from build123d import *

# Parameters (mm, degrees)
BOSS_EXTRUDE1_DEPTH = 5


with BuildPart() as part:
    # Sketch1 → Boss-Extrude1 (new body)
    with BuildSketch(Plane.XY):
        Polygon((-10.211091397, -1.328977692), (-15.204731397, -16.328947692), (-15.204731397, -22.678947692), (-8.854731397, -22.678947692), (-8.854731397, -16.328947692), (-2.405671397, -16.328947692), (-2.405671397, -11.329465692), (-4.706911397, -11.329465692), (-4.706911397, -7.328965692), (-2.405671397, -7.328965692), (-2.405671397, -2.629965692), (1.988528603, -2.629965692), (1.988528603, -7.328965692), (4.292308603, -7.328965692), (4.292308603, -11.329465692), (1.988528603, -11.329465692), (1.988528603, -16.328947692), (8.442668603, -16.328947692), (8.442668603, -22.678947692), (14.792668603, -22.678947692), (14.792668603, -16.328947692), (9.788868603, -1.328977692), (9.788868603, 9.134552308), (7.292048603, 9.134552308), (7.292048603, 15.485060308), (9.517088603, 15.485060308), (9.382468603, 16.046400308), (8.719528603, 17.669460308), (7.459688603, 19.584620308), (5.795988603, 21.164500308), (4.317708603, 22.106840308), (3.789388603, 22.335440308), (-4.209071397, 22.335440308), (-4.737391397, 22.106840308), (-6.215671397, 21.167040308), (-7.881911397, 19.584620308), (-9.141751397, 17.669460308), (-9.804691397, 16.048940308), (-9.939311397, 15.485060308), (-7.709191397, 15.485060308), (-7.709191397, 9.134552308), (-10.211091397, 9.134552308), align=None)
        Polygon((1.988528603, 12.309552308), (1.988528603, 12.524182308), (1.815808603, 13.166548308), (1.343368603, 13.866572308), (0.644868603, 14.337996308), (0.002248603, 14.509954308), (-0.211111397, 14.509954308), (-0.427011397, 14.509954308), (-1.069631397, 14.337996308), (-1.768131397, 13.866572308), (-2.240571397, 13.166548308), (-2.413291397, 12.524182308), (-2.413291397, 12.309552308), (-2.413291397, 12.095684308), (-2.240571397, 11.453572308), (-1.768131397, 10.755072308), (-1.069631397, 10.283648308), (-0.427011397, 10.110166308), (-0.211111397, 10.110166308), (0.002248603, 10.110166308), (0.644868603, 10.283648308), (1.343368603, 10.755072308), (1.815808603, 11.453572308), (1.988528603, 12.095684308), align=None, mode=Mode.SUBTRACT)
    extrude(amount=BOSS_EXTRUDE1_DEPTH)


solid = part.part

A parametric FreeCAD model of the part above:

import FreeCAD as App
import Part
import Sketcher
from FreeCAD import Vector
Q = App.Units.Quantity

doc = App.newDocument("Part")
body = doc.addObject("PartDesign::Body", "Body")

# Sketch on XY plane
sketch1 = body.newObject("Sketcher::SketchObject", "Sketch")
sketch1.AttachmentSupport = (doc.getObject("XY_Plane"), [""])
sketch1.MapMode = "FlatFace"
sketch1.addGeometry([
    Part.LineSegment(Vector(-10.211091, -1.328978, 0), Vector(-15.204731, -16.328948, 0)),  # 0
    Part.LineSegment(Vector(-15.204731, -16.328948, 0), Vector(-15.204731, -22.678948, 0)),  # 1
    Part.LineSegment(Vector(-15.204731, -22.678948, 0), Vector(-8.854731, -22.678948, 0)),  # 2
    Part.LineSegment(Vector(-8.854731, -22.678948, 0), Vector(-8.854731, -16.328948, 0)),  # 3
    Part.LineSegment(Vector(-8.854731, -16.328948, 0), Vector(-2.405671, -16.328948, 0)),  # 4
    Part.LineSegment(Vector(-2.405671, -16.328948, 0), Vector(-2.405671, -11.329466, 0)),  # 5
    Part.LineSegment(Vector(-2.405671, -11.329466, 0), Vector(-4.706911, -11.329466, 0)),  # 6
    Part.LineSegment(Vector(-4.706911, -11.329466, 0), Vector(-4.706911, -7.328966, 0)),  # 7
    Part.LineSegment(Vector(-4.706911, -7.328966, 0), Vector(-2.405671, -7.328966, 0)),  # 8
    Part.LineSegment(Vector(-2.405671, -7.328966, 0), Vector(-2.405671, -2.629966, 0)),  # 9
    Part.LineSegment(Vector(-2.405671, -2.629966, 0), Vector(1.988529, -2.629966, 0)),  # 10
    Part.LineSegment(Vector(1.988529, -2.629966, 0), Vector(1.988529, -7.328966, 0)),  # 11
    Part.LineSegment(Vector(1.988529, -7.328966, 0), Vector(4.292309, -7.328966, 0)),  # 12
    Part.LineSegment(Vector(4.292309, -7.328966, 0), Vector(4.292309, -11.329466, 0)),  # 13
    Part.LineSegment(Vector(4.292309, -11.329466, 0), Vector(1.988529, -11.329466, 0)),  # 14
    Part.LineSegment(Vector(1.988529, -11.329466, 0), Vector(1.988529, -16.328948, 0)),  # 15
    Part.LineSegment(Vector(1.988529, -16.328948, 0), Vector(8.442669, -16.328948, 0)),  # 16
    Part.LineSegment(Vector(8.442669, -16.328948, 0), Vector(8.442669, -22.678948, 0)),  # 17
    Part.LineSegment(Vector(8.442669, -22.678948, 0), Vector(14.792669, -22.678948, 0)),  # 18
    Part.LineSegment(Vector(14.792669, -22.678948, 0), Vector(14.792669, -16.328948, 0)),  # 19
    Part.LineSegment(Vector(14.792669, -16.328948, 0), Vector(9.788869, -1.328978, 0)),  # 20
    Part.LineSegment(Vector(9.788869, -1.328978, 0), Vector(9.788869, 9.134552, 0)),  # 21
    Part.LineSegment(Vector(9.788869, 9.134552, 0), Vector(7.292049, 9.134552, 0)),  # 22
    Part.LineSegment(Vector(7.292049, 9.134552, 0), Vector(7.292049, 15.48506, 0)),  # 23
    Part.LineSegment(Vector(7.292049, 15.48506, 0), Vector(9.517089, 15.48506, 0)),  # 24
    Part.LineSegment(Vector(9.517089, 15.48506, 0), Vector(9.382469, 16.0464, 0)),  # 25
    Part.LineSegment(Vector(9.382469, 16.0464, 0), Vector(8.719529, 17.66946, 0)),  # 26
    Part.LineSegment(Vector(8.719529, 17.66946, 0), Vector(7.459689, 19.58462, 0)),  # 27
    Part.LineSegment(Vector(7.459689, 19.58462, 0), Vector(5.795989, 21.1645, 0)),  # 28
    Part.LineSegment(Vector(5.795989, 21.1645, 0), Vector(4.317709, 22.10684, 0)),  # 29
    Part.LineSegment(Vector(4.317709, 22.10684, 0), Vector(3.789389, 22.33544, 0)),  # 30
    Part.LineSegment(Vector(3.789389, 22.33544, 0), Vector(-4.209071, 22.33544, 0)),  # 31
    Part.LineSegment(Vector(-4.209071, 22.33544, 0), Vector(-4.737391, 22.10684, 0)),  # 32
    Part.LineSegment(Vector(-4.737391, 22.10684, 0), Vector(-6.215671, 21.16704, 0)),  # 33
    Part.LineSegment(Vector(-6.215671, 21.16704, 0), Vector(-7.881911, 19.58462, 0)),  # 34
    Part.LineSegment(Vector(-7.881911, 19.58462, 0), Vector(-9.141751, 17.66946, 0)),  # 35
    Part.LineSegment(Vector(-9.141751, 17.66946, 0), Vector(-9.804691, 16.04894, 0)),  # 36
    Part.LineSegment(Vector(-9.804691, 16.04894, 0), Vector(-9.939311, 15.48506, 0)),  # 37
    Part.LineSegment(Vector(-9.939311, 15.48506, 0), Vector(-7.709191, 15.48506, 0)),  # 38
    Part.LineSegment(Vector(-7.709191, 15.48506, 0), Vector(-7.709191, 9.134552, 0)),  # 39
    Part.LineSegment(Vector(-7.709191, 9.134552, 0), Vector(-10.211091, 9.134552, 0)),  # 40
    Part.LineSegment(Vector(-10.211091, 9.134552, 0), Vector(-10.211091, -1.328978, 0)),  # 41
    Part.LineSegment(Vector(1.988529, 12.524182, 0), Vector(1.988529, 12.095684, 0)),  # 42
    Part.LineSegment(Vector(1.988529, 12.095684, 0), Vector(1.815809, 11.453572, 0)),  # 43
    Part.LineSegment(Vector(1.815809, 11.453572, 0), Vector(1.343369, 10.755072, 0)),  # 44
    Part.LineSegment(Vector(1.343369, 10.755072, 0), Vector(0.644869, 10.283648, 0)),  # 45
    Part.LineSegment(Vector(0.644869, 10.283648, 0), Vector(0.002249, 10.110166, 0)),  # 46
    Part.LineSegment(Vector(0.002249, 10.110166, 0), Vector(-0.427011, 10.110166, 0)),  # 47
    Part.LineSegment(Vector(-0.427011, 10.110166, 0), Vector(-1.069631, 10.283648, 0)),  # 48
    Part.LineSegment(Vector(-1.069631, 10.283648, 0), Vector(-1.768131, 10.755072, 0)),  # 49
    Part.LineSegment(Vector(-1.768131, 10.755072, 0), Vector(-2.240571, 11.453572, 0)),  # 50
    Part.LineSegment(Vector(-2.240571, 11.453572, 0), Vector(-2.413291, 12.095684, 0)),  # 51
    Part.LineSegment(Vector(-2.413291, 12.095684, 0), Vector(-2.413291, 12.524182, 0)),  # 52
    Part.LineSegment(Vector(-2.413291, 12.524182, 0), Vector(-2.240571, 13.166548, 0)),  # 53
    Part.LineSegment(Vector(-2.240571, 13.166548, 0), Vector(-1.768131, 13.866572, 0)),  # 54
    Part.LineSegment(Vector(-1.768131, 13.866572, 0), Vector(-1.069631, 14.337996, 0)),  # 55
    Part.LineSegment(Vector(-1.069631, 14.337996, 0), Vector(-0.427011, 14.509954, 0)),  # 56
    Part.LineSegment(Vector(-0.427011, 14.509954, 0), Vector(0.002249, 14.509954, 0)),  # 57
    Part.LineSegment(Vector(0.002249, 14.509954, 0), Vector(0.644869, 14.337996, 0)),  # 58
    Part.LineSegment(Vector(0.644869, 14.337996, 0), Vector(1.343369, 13.866572, 0)),  # 59
    Part.LineSegment(Vector(1.343369, 13.866572, 0), Vector(1.815809, 13.166548, 0)),  # 60
    Part.LineSegment(Vector(1.815809, 13.166548, 0), Vector(1.988529, 12.524182, 0)),  # 61
], False)
sketch1.addConstraint([
    Sketcher.Constraint("Coincident", 0, 2, 1, 1),
    Sketcher.Constraint("Coincident", 1, 2, 2, 1),
    Sketcher.Constraint("Coincident", 2, 2, 3, 1),
    Sketcher.Constraint("Coincident", 3, 2, 4, 1),
    Sketcher.Constraint("Coincident", 4, 2, 5, 1),
    Sketcher.Constraint("Coincident", 5, 2, 6, 1),
    Sketcher.Constraint("Coincident", 6, 2, 7, 1),
    Sketcher.Constraint("Coincident", 7, 2, 8, 1),
    Sketcher.Constraint("Coincident", 8, 2, 9, 1),
    Sketcher.Constraint("Coincident", 9, 2, 10, 1),
    Sketcher.Constraint("Coincident", 10, 2, 11, 1),
    Sketcher.Constraint("Coincident", 11, 2, 12, 1),
    Sketcher.Constraint("Coincident", 12, 2, 13, 1),
    Sketcher.Constraint("Coincident", 13, 2, 14, 1),
    Sketcher.Constraint("Coincident", 14, 2, 15, 1),
    Sketcher.Constraint("Coincident", 15, 2, 16, 1),
    Sketcher.Constraint("Coincident", 16, 2, 17, 1),
    Sketcher.Constraint("Coincident", 17, 2, 18, 1),
    Sketcher.Constraint("Coincident", 18, 2, 19, 1),
    Sketcher.Constraint("Coincident", 19, 2, 20, 1),
    Sketcher.Constraint("Coincident", 20, 2, 21, 1),
    Sketcher.Constraint("Coincident", 21, 2, 22, 1),
    Sketcher.Constraint("Coincident", 22, 2, 23, 1),
    Sketcher.Constraint("Coincident", 23, 2, 24, 1),
    Sketcher.Constraint("Coincident", 24, 2, 25, 1),
    Sketcher.Constraint("Coincident", 25, 2, 26, 1),
    Sketcher.Constraint("Coincident", 26, 2, 27, 1),
    Sketcher.Constraint("Coincident", 27, 2, 28, 1),
    Sketcher.Constraint("Coincident", 28, 2, 29, 1),
    Sketcher.Constraint("Coincident", 29, 2, 30, 1),
    Sketcher.Constraint("Coincident", 30, 2, 31, 1),
    Sketcher.Constraint("Coincident", 31, 2, 32, 1),
    Sketcher.Constraint("Coincident", 32, 2, 33, 1),
    Sketcher.Constraint("Coincident", 33, 2, 34, 1),
    Sketcher.Constraint("Coincident", 34, 2, 35, 1),
    Sketcher.Constraint("Coincident", 35, 2, 36, 1),
    Sketcher.Constraint("Coincident", 36, 2, 37, 1),
    Sketcher.Constraint("Coincident", 37, 2, 38, 1),
    Sketcher.Constraint("Coincident", 38, 2, 39, 1),
    Sketcher.Constraint("Coincident", 39, 2, 40, 1),
    Sketcher.Constraint("Coincident", 40, 2, 41, 1),
    Sketcher.Constraint("Coincident", 41, 2, 0, 1),
    Sketcher.Constraint("Coincident", 42, 2, 43, 1),
    Sketcher.Constraint("Coincident", 43, 2, 44, 1),
    Sketcher.Constraint("Coincident", 44, 2, 45, 1),
    Sketcher.Constraint("Coincident", 45, 2, 46, 1),
    Sketcher.Constraint("Coincident", 46, 2, 47, 1),
    Sketcher.Constraint("Coincident", 47, 2, 48, 1),
    Sketcher.Constraint("Coincident", 48, 2, 49, 1),
    Sketcher.Constraint("Coincident", 49, 2, 50, 1),
    Sketcher.Constraint("Coincident", 50, 2, 51, 1),
    Sketcher.Constraint("Coincident", 51, 2, 52, 1),
    Sketcher.Constraint("Coincident", 52, 2, 53, 1),
    Sketcher.Constraint("Coincident", 53, 2, 54, 1),
    Sketcher.Constraint("Coincident", 54, 2, 55, 1),
    Sketcher.Constraint("Coincident", 55, 2, 56, 1),
    Sketcher.Constraint("Coincident", 56, 2, 57, 1),
    Sketcher.Constraint("Coincident", 57, 2, 58, 1),
    Sketcher.Constraint("Coincident", 58, 2, 59, 1),
    Sketcher.Constraint("Coincident", 59, 2, 60, 1),
    Sketcher.Constraint("Coincident", 60, 2, 61, 1),
    Sketcher.Constraint("Coincident", 61, 2, 42, 1),
    Sketcher.Constraint("Vertical", 1),
    Sketcher.Constraint("Horizontal", 2),
    Sketcher.Constraint("Vertical", 3),
    Sketcher.Constraint("Horizontal", 4),
    Sketcher.Constraint("Vertical", 5),
    Sketcher.Constraint("Horizontal", 6),
    Sketcher.Constraint("Vertical", 7),
    Sketcher.Constraint("Horizontal", 8),
    Sketcher.Constraint("Vertical", 9),
    Sketcher.Constraint("Horizontal", 10),
    Sketcher.Constraint("Vertical", 11),
    Sketcher.Constraint("Horizontal", 12),
    Sketcher.Constraint("Vertical", 13),
    Sketcher.Constraint("Horizontal", 14),
    Sketcher.Constraint("Vertical", 15),
    Sketcher.Constraint("Horizontal", 16),
    Sketcher.Constraint("Vertical", 17),
    Sketcher.Constraint("Horizontal", 18),
    Sketcher.Constraint("Vertical", 19),
    Sketcher.Constraint("Vertical", 21),
    Sketcher.Constraint("Horizontal", 22),
    Sketcher.Constraint("Vertical", 23),
    Sketcher.Constraint("Horizontal", 24),
    Sketcher.Constraint("Horizontal", 31),
    Sketcher.Constraint("Horizontal", 38),
    Sketcher.Constraint("Vertical", 39),
    Sketcher.Constraint("Horizontal", 40),
    Sketcher.Constraint("Vertical", 41),
    Sketcher.Constraint("Vertical", 42),
    Sketcher.Constraint("Horizontal", 47),
    Sketcher.Constraint("Vertical", 52),
    Sketcher.Constraint("Horizontal", 57),
    Sketcher.Constraint("Parallel", 45, 55),
    Sketcher.Constraint("Parallel", 49, 59),
    Sketcher.Constraint("Horizontal", 0, 2, 3, 2),
    Sketcher.Constraint("Horizontal", 8, 2, 11, 2),
    Sketcher.Constraint("Horizontal", 6, 2, 13, 2),
    Sketcher.Constraint("Horizontal", 4, 2, 15, 2),
    Sketcher.Constraint("Horizontal", 2, 2, 17, 2),
    Sketcher.Constraint("Horizontal", 16, 2, 19, 2),
    Sketcher.Constraint("Horizontal", 29, 2, 32, 2),
    Sketcher.Constraint("Horizontal", 27, 2, 34, 2),
    Sketcher.Constraint("Horizontal", 26, 2, 35, 2),
    Sketcher.Constraint("Horizontal", 24, 2, 37, 2),
    Sketcher.Constraint("Horizontal", 22, 2, 39, 2),
    Sketcher.Constraint("Horizontal", 20, 2, 41, 2),
    Sketcher.Constraint("Horizontal", 45, 2, 48, 2),
    Sketcher.Constraint("Horizontal", 44, 2, 49, 2),
    Sketcher.Constraint("Horizontal", 43, 2, 50, 2),
    Sketcher.Constraint("Horizontal", 42, 2, 51, 2),
    Sketcher.Constraint("Horizontal", 55, 2, 58, 2),
    Sketcher.Constraint("Horizontal", 54, 2, 59, 2),
    Sketcher.Constraint("Horizontal", 53, 2, 60, 2),
    Sketcher.Constraint("Horizontal", 52, 2, 61, 2),
    Sketcher.Constraint("Vertical", 5, 2, 8, 2),
    Sketcher.Constraint("Vertical", 11, 2, 14, 2),
    Sketcher.Constraint("Vertical", 15, 2, 42, 2),
    Sketcher.Constraint("Vertical", 50, 2, 53, 2),
    Sketcher.Constraint("Vertical", 49, 2, 54, 2),
    Sketcher.Constraint("Vertical", 48, 2, 55, 2),
    Sketcher.Constraint("Vertical", 47, 2, 56, 2),
    Sketcher.Constraint("Vertical", 46, 2, 57, 2),
    Sketcher.Constraint("Vertical", 45, 2, 58, 2),
    Sketcher.Constraint("Vertical", 44, 2, 59, 2),
    Sketcher.Constraint("Vertical", 43, 2, 60, 2),
    Sketcher.Constraint("Equal", 2, 18),
    Sketcher.Constraint("Equal", 18, 1),
    Sketcher.Constraint("Equal", 30, 32),
    Sketcher.Constraint("Equal", 27, 35),
    Sketcher.Constraint("Equal", 46, 48),
    Sketcher.Constraint("Equal", 44, 50),
    Sketcher.Constraint("Equal", 43, 51),
    Sketcher.Constraint("DistanceX", 2, 1, 2, 2, Q("0.25 in")),
    Sketcher.Constraint("DistanceX", 10, 1, 10, 2, Q("0.173 in")),
    Sketcher.Constraint("DistanceY", 9, 1, 9, 2, Q("0.185 in")),
    Sketcher.Constraint("DistanceX", 4, 1, 4, 2, Q("0.2539 in")),
    Sketcher.Constraint("DistanceX", 6, 2, 6, 1, Q("0.0906 in")),
    Sketcher.Constraint("DistanceX", 12, 1, 12, 2, Q("0.0907 in")),
    Sketcher.Constraint("DistanceX", 16, 1, 16, 2, Q("0.2541 in")),
    Sketcher.Constraint("DistanceX", 22, 2, 22, 1, Q("0.0983 in")),
    Sketcher.Constraint("DistanceX", 24, 1, 24, 2, Q("0.0876 in")),
    Sketcher.Constraint("DistanceX", 31, 2, 31, 1, Q("0.3149 in")),
    Sketcher.Constraint("DistanceX", 38, 1, 38, 2, Q("0.0878 in")),
    Sketcher.Constraint("DistanceX", 40, 2, 40, 1, Q("0.0985 in")),
    Sketcher.Constraint("DistanceX", 47, 2, 47, 1, Q("0.0169 in")),
    Sketcher.Constraint("DistanceY", 7, 1, 7, 2, Q("0.1575 in")),
    Sketcher.Constraint("DistanceY", 42, 2, 42, 1, Q("0.428498 mm")),
    Sketcher.Constraint("Distance", 45, Q("0.8427 mm")),
    Sketcher.Constraint("DistanceY", 21, 1, 21, 2, Q("10.46353 mm")),
    Sketcher.Constraint("DistanceY", -1, 1, 25, 2, Q("16.0464 mm")),
    Sketcher.Constraint("DistanceY", -1, 1, 28, 2, Q("21.1645 mm")),
    Sketcher.Constraint("Distance", 0, Q("15.80935 mm")),
    Sketcher.Constraint("Distance", 20, Q("15.812562 mm")),
    Sketcher.Constraint("Distance", 26, Q("1.753229 mm")),
    Sketcher.Constraint("Distance", 36, Q("1.750878 mm")),
    Sketcher.Constraint("Distance", 44, Q("0.843269 mm")),
    Sketcher.Constraint("Distance", 53, Q("0.665181 mm")),
    Sketcher.Constraint("Distance", 54, Q("0.844531 mm")),
    Sketcher.Constraint("Distance", 56, Q("0.665229 mm")),
    Sketcher.Constraint("DistanceY", 5, 1, 5, 2, Q("4.999482 mm")),
    Sketcher.Constraint("DistanceY", 23, 1, 23, 2, Q("6.350508 mm")),
    Sketcher.Constraint("DistanceX", 0, 2, -1, 1, Q("15.204731 mm")),
    Sketcher.Constraint("DistanceX", -1, 1, 20, 2, Q("9.788869 mm")),
    Sketcher.Constraint("DistanceY", -1, 1, 23, 2, Q("15.48506 mm")),
    Sketcher.Constraint("DistanceX", -1, 1, 25, 2, Q("9.382469 mm")),
    Sketcher.Constraint("DistanceX", -1, 1, 26, 2, Q("8.719529 mm")),
    Sketcher.Constraint("DistanceX", -1, 1, 27, 2, Q("7.459689 mm")),
    Sketcher.Constraint("DistanceY", -1, 1, 27, 2, Q("19.58462 mm")),
    Sketcher.Constraint("DistanceX", -1, 1, 28, 2, Q("5.795989 mm")),
    Sketcher.Constraint("DistanceX", -1, 1, 29, 2, Q("4.317709 mm")),
    Sketcher.Constraint("DistanceY", -1, 1, 29, 2, Q("22.10684 mm")),
    Sketcher.Constraint("DistanceX", -1, 1, 30, 2, Q("3.789389 mm")),
    Sketcher.Constraint("DistanceY", -1, 1, 30, 2, Q("22.33544 mm")),
    Sketcher.Constraint("DistanceX", 33, 2, -1, 1, Q("6.215671 mm")),
    Sketcher.Constraint("DistanceY", -1, 1, 33, 2, Q("21.16704 mm")),
    Sketcher.Constraint("DistanceX", 34, 2, -1, 1, Q("7.881911 mm")),
    Sketcher.Constraint("DistanceX", 36, 2, -1, 1, Q("9.804691 mm")),
    Sketcher.Constraint("DistanceX", -1, 1, 43, 2, Q("1.815809 mm")),
    Sketcher.Constraint("DistanceX", -1, 1, 44, 2, Q("1.343369 mm")),
    Sketcher.Constraint("DistanceX", -1, 1, 45, 2, Q("0.644869 mm")),
    Sketcher.Constraint("DistanceY", -1, 1, 45, 2, Q("10.283648 mm")),
    Sketcher.Constraint("DistanceX", -1, 1, 46, 2, Q("0.002249 mm")),
    Sketcher.Constraint("DistanceY", -1, 1, 53, 2, Q("13.166548 mm")),
    Sketcher.Constraint("Distance", 46, Q("0.665625 mm")),
])
pad1 = body.newObject("PartDesign::Pad", "Pad")
pad1.Profile = sketch1
pad1.Length = 5

doc.recompute()
